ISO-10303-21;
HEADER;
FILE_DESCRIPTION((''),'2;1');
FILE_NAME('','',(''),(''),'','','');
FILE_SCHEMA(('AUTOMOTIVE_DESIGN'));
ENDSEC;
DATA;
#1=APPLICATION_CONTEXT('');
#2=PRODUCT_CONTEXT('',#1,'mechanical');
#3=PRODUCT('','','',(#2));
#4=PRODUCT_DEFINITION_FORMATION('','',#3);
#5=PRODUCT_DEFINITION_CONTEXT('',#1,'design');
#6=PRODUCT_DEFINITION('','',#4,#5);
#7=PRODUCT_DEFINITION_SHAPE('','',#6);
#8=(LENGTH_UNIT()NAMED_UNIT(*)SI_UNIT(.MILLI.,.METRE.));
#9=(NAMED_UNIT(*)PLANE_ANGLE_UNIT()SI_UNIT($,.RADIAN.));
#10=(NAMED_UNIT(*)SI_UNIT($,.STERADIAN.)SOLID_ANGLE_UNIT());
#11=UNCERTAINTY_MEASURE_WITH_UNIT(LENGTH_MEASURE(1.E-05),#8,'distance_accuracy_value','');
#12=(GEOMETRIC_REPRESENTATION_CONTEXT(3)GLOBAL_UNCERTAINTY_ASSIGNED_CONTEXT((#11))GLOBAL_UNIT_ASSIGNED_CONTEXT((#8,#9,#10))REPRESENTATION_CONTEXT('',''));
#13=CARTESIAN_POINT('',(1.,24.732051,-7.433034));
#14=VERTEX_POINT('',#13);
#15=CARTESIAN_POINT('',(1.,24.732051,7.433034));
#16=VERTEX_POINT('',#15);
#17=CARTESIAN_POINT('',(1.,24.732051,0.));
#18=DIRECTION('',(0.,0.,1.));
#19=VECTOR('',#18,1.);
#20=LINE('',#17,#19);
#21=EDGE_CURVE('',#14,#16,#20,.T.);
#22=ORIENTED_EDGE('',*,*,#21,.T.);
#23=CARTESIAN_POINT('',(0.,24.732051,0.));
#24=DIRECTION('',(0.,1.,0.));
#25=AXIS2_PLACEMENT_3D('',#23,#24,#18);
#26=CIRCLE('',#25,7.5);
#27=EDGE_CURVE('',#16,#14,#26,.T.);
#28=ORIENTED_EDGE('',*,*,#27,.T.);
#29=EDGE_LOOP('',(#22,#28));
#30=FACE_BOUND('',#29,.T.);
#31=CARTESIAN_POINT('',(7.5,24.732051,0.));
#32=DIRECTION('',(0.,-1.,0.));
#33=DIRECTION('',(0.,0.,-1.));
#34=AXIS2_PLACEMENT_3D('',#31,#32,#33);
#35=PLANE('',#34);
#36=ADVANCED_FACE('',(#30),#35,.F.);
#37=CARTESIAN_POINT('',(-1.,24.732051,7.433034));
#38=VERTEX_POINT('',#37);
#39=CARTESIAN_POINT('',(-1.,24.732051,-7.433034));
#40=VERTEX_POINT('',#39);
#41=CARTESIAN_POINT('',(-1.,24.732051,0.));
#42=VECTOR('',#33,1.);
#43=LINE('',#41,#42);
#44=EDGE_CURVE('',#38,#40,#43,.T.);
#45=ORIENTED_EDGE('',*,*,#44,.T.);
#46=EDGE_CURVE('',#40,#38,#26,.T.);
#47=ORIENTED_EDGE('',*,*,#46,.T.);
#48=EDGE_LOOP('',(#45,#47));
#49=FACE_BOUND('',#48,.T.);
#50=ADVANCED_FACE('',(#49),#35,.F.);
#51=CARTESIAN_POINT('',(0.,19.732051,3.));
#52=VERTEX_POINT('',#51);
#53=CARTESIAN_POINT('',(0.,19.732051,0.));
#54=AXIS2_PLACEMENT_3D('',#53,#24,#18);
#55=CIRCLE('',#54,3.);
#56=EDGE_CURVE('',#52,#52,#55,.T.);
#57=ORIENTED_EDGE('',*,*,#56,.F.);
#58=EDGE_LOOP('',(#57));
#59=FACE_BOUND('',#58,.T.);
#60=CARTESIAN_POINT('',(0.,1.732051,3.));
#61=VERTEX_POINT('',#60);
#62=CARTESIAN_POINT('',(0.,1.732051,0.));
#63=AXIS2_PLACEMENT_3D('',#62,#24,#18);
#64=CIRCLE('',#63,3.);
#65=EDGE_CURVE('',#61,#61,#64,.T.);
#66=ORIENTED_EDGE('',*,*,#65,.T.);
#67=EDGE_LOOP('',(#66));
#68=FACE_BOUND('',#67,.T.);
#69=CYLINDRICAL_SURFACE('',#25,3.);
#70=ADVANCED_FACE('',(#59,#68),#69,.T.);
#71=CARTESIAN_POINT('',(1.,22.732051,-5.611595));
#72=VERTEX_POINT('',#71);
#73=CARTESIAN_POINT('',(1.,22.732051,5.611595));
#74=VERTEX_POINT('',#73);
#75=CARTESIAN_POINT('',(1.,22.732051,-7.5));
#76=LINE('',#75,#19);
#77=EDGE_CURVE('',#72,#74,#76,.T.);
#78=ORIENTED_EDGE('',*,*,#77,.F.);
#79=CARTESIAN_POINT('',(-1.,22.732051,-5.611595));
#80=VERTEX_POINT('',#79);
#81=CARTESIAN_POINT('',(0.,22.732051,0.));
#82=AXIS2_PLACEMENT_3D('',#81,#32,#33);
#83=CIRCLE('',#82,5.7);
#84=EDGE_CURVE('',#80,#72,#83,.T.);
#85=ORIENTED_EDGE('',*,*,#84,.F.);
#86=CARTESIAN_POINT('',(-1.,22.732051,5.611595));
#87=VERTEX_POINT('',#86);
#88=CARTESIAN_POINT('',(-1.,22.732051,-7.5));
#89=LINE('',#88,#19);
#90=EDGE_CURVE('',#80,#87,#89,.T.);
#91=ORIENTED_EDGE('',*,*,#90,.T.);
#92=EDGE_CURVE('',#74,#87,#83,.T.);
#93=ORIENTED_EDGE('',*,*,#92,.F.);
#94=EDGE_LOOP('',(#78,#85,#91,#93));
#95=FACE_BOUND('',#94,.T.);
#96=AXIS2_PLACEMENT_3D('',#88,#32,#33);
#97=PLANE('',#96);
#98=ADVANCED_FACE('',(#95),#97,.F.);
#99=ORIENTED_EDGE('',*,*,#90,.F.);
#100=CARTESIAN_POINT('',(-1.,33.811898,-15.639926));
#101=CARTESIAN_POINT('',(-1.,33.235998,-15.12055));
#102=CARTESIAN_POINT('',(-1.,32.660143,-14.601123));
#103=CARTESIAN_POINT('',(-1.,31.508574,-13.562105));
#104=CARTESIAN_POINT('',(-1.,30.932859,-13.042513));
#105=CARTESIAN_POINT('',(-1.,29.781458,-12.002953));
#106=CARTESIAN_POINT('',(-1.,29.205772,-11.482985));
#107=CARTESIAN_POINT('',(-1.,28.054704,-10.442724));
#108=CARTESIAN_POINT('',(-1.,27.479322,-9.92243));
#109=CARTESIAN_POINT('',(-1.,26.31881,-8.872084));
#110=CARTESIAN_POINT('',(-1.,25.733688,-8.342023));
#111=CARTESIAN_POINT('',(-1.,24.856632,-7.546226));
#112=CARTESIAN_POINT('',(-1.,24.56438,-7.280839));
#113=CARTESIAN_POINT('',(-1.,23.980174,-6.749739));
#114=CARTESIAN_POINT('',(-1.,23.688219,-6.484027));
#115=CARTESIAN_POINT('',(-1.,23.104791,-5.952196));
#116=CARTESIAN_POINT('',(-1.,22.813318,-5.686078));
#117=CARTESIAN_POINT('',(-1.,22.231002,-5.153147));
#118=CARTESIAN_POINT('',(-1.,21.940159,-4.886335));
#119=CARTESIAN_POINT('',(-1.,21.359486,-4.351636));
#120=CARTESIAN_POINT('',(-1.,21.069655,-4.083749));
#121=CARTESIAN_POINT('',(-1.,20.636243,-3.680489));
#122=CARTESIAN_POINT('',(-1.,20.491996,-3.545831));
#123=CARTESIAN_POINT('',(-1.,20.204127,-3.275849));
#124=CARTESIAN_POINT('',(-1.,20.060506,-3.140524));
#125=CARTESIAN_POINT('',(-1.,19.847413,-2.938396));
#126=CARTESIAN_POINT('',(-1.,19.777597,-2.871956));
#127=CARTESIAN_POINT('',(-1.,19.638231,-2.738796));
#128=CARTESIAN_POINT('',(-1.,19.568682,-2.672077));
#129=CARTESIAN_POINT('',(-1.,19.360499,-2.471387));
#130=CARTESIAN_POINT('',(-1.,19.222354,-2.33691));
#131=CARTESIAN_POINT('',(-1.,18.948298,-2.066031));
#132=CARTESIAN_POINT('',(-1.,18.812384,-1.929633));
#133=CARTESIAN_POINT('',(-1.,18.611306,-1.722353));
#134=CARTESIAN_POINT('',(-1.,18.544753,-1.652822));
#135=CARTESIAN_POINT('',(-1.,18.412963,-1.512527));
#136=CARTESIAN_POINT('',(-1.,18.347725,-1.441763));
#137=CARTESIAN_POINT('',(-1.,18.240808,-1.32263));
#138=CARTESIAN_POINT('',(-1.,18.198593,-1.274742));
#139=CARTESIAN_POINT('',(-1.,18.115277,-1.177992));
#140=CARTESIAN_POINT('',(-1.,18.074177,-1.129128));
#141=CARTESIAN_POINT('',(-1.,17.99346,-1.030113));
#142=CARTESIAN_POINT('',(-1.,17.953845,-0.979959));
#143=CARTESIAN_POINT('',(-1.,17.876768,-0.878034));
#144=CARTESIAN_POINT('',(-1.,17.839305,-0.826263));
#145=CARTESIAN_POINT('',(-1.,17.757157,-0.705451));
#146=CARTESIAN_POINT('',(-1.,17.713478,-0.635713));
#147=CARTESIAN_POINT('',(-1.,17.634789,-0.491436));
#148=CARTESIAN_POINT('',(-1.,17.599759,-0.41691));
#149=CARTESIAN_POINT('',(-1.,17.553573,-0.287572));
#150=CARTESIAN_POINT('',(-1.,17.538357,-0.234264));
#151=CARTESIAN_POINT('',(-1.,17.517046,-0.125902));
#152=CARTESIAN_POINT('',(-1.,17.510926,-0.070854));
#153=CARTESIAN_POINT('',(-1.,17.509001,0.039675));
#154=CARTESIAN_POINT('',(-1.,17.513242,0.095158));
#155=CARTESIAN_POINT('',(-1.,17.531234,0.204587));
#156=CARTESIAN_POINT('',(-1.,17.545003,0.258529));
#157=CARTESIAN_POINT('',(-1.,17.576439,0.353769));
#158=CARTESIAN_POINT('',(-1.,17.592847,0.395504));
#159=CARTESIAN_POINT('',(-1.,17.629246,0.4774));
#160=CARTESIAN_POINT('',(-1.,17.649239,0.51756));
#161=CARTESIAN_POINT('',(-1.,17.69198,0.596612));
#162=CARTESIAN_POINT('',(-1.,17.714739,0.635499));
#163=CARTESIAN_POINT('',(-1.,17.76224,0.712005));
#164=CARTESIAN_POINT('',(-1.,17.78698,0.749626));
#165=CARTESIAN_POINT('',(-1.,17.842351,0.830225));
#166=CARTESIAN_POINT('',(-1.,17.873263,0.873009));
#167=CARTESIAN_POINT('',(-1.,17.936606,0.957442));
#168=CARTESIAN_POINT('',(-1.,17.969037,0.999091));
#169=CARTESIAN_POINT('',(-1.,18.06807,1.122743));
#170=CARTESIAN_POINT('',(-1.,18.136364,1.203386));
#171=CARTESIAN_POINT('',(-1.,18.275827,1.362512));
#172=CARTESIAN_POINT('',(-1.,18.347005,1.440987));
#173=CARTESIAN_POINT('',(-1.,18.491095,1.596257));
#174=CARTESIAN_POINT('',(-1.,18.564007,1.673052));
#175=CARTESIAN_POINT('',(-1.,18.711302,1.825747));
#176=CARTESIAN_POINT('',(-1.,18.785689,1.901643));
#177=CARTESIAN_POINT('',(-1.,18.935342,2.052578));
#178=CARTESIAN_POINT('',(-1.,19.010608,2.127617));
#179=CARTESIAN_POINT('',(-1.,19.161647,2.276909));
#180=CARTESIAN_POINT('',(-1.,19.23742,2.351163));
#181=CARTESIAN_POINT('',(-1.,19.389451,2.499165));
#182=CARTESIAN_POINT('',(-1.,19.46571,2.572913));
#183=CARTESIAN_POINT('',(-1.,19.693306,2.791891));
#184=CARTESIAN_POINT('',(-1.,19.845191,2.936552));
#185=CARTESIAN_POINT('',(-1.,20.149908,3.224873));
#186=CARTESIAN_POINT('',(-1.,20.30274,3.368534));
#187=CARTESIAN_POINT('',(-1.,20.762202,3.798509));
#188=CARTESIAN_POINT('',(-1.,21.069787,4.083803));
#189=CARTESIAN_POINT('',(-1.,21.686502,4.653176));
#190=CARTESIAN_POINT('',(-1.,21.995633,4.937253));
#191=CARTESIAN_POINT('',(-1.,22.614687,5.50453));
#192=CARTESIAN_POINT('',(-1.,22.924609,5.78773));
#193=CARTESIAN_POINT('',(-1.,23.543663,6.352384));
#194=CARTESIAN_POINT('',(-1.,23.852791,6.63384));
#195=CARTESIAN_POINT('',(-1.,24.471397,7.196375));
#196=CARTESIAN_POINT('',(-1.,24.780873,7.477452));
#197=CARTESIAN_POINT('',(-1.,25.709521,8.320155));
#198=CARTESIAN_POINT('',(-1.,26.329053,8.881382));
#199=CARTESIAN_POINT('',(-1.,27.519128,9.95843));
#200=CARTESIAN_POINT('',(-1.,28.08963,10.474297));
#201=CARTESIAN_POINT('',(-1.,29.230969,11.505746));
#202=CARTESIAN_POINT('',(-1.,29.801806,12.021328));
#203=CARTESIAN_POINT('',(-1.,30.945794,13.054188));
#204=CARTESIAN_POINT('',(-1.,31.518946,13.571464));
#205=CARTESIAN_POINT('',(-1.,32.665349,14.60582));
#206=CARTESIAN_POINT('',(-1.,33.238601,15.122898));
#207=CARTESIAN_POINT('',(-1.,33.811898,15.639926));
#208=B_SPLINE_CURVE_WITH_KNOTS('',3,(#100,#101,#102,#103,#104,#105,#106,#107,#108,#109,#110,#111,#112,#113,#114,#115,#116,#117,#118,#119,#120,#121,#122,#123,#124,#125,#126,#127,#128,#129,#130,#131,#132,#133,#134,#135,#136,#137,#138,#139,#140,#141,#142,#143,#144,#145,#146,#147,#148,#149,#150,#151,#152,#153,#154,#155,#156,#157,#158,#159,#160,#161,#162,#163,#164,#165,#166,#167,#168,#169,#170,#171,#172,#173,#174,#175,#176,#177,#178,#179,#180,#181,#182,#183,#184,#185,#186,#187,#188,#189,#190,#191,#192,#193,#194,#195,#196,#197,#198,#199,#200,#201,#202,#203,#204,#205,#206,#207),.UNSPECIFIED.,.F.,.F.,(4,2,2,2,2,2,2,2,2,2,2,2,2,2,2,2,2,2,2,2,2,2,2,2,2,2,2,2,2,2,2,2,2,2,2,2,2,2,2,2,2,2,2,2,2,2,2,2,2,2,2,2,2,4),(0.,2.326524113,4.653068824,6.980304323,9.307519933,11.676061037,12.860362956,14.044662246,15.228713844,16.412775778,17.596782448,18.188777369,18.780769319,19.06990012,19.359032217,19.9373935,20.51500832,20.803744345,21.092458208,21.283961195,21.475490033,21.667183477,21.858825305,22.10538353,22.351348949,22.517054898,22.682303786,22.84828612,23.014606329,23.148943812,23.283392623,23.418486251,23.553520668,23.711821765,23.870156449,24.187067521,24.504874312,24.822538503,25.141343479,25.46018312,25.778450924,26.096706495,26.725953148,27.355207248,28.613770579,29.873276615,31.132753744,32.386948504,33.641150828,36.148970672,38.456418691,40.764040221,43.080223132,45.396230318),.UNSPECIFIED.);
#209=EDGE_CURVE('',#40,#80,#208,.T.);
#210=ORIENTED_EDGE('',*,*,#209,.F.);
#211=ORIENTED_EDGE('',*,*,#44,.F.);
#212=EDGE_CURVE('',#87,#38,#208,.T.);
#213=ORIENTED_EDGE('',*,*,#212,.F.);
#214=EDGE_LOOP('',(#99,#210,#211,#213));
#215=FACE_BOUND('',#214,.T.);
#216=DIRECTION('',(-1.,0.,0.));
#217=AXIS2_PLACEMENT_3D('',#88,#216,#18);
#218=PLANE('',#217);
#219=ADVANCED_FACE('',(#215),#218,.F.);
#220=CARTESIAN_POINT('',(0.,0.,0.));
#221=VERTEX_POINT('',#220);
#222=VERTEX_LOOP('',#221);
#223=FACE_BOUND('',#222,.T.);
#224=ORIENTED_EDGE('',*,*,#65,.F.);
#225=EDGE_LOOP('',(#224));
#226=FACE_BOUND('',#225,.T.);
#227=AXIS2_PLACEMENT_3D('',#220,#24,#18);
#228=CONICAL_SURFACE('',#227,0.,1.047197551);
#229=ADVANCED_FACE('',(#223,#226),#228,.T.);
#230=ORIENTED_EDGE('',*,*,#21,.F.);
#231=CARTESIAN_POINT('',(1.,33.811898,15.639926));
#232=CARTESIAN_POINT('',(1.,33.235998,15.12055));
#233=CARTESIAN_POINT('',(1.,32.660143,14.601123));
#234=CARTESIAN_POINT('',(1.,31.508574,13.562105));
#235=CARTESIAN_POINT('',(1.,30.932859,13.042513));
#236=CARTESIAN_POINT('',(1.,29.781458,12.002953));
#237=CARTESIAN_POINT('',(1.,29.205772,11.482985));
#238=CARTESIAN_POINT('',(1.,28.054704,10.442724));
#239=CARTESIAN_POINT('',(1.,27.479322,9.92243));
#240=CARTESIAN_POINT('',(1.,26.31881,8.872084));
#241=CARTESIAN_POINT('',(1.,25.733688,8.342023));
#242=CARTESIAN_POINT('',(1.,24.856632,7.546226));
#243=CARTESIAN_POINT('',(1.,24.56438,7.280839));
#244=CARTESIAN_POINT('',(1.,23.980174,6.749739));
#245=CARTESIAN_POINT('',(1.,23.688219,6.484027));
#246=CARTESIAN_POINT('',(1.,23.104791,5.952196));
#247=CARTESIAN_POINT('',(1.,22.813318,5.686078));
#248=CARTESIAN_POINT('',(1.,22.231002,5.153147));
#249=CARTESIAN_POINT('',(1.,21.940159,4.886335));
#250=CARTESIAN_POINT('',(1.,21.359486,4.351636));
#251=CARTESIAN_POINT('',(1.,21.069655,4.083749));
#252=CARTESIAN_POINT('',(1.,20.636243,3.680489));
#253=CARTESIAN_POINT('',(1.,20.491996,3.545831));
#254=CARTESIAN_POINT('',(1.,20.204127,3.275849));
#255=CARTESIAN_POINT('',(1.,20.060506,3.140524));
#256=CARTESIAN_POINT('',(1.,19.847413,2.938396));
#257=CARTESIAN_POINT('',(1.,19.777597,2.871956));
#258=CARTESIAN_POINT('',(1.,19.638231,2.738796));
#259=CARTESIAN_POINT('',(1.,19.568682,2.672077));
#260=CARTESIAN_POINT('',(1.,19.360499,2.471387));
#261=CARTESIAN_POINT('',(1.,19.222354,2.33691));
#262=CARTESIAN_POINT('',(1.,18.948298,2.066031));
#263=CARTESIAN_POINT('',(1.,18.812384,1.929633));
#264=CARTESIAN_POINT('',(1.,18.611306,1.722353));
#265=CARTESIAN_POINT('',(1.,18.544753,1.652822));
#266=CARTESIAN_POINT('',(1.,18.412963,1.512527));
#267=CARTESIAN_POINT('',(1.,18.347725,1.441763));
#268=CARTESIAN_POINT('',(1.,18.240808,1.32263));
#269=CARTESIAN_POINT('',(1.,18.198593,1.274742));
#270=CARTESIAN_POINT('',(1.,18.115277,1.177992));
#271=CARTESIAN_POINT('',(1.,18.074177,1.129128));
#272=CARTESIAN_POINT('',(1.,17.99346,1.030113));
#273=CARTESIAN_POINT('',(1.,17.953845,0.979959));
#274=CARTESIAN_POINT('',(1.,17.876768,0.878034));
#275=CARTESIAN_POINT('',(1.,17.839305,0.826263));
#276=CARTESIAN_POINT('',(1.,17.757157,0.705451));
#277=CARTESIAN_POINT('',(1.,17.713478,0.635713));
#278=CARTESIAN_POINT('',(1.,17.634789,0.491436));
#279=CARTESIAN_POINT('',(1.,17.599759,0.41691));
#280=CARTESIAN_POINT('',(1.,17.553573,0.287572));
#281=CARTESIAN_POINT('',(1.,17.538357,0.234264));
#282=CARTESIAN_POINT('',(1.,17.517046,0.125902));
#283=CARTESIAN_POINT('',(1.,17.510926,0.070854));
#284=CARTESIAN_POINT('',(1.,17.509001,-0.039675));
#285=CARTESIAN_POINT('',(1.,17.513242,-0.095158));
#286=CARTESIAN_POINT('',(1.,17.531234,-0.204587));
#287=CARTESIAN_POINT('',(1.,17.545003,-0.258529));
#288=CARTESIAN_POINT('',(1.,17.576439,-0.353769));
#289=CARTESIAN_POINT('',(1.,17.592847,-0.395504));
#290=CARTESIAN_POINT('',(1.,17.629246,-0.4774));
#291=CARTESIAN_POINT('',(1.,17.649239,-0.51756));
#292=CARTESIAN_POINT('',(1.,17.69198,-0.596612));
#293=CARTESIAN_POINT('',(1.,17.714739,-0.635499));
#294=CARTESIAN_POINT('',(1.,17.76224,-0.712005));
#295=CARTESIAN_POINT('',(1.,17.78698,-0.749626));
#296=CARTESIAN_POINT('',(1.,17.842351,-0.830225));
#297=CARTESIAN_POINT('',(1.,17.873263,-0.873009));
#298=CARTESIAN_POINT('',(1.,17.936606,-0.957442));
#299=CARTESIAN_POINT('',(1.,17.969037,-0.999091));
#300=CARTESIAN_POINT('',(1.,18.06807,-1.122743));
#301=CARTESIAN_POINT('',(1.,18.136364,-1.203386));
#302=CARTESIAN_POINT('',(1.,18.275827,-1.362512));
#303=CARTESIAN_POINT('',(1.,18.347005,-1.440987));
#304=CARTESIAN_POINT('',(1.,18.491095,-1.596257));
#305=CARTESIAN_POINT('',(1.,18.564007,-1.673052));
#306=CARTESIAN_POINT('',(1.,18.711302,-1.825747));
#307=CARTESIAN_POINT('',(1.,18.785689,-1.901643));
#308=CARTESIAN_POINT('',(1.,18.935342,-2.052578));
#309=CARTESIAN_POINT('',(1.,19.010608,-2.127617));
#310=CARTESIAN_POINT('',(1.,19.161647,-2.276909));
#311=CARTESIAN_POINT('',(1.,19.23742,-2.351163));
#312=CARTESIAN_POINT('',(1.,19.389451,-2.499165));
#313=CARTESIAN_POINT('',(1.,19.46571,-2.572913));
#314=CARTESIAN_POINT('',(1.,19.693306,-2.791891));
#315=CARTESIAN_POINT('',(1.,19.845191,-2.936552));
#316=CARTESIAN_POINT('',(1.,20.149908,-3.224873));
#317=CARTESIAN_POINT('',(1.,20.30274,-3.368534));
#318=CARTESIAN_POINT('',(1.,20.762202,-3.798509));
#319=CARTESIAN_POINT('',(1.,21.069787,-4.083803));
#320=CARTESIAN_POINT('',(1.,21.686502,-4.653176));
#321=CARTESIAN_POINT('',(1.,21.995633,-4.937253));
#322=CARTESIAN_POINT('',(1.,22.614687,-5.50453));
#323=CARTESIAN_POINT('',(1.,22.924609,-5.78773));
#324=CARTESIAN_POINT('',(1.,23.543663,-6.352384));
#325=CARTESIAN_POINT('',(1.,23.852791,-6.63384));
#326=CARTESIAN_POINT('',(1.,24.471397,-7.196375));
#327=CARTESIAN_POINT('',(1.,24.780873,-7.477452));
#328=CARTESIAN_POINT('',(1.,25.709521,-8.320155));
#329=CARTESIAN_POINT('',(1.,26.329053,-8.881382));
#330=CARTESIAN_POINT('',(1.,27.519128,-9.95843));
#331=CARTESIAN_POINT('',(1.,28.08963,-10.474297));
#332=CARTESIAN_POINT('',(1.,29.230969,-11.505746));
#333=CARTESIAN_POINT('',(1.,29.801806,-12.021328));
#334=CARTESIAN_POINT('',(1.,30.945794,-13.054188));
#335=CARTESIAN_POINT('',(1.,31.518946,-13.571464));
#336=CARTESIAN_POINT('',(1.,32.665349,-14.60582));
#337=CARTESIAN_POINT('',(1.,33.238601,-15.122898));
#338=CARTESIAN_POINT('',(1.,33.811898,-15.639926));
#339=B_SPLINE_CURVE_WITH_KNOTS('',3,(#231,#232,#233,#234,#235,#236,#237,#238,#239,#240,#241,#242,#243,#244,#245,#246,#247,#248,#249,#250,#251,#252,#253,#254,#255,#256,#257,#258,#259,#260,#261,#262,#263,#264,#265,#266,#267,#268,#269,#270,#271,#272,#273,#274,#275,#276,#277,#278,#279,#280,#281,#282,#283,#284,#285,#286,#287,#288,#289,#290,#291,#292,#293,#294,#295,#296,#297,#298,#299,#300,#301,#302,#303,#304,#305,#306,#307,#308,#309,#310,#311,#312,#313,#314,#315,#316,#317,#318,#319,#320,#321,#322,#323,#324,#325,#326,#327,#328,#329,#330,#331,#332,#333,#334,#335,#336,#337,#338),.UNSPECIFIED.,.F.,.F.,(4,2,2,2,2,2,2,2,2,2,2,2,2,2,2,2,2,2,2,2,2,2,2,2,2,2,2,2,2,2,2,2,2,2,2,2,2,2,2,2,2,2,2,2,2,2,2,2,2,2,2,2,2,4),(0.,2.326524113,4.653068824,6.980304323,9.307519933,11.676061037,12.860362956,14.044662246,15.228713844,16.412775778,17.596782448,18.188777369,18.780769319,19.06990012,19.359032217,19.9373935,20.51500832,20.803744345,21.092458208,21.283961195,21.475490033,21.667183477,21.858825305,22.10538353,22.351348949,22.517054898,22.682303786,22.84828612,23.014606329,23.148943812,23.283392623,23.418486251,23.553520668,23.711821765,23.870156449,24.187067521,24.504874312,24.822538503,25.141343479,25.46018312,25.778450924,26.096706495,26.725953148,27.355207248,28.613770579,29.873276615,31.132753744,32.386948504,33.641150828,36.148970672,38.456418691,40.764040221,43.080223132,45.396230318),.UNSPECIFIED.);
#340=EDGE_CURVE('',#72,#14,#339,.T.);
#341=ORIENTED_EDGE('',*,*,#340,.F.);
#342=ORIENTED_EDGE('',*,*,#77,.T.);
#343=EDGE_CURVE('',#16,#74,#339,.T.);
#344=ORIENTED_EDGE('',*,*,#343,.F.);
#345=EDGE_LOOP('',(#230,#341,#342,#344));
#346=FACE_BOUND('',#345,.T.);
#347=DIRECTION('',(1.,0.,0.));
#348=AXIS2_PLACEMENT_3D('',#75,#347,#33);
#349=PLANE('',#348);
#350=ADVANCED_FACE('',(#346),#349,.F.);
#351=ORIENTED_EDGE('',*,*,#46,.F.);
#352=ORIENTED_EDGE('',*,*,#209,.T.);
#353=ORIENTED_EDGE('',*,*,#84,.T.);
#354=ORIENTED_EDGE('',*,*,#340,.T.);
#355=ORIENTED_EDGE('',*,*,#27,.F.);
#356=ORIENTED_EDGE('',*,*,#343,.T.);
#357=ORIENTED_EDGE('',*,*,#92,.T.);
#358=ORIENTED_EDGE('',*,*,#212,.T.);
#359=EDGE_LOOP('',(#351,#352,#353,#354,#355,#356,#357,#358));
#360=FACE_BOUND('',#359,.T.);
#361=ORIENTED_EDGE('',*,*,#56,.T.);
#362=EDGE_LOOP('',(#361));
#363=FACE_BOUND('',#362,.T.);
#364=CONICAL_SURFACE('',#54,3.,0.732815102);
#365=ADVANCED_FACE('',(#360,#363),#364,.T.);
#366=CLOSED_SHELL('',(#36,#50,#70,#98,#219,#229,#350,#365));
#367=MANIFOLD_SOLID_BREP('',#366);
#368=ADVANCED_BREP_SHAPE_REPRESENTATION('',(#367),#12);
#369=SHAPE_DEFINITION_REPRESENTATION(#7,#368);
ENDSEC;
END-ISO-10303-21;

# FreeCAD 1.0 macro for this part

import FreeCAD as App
import Part
import Sketcher
from FreeCAD import Vector
Q = App.Units.Quantity

doc = App.newDocument("Part")
params = doc.addObject("Spreadsheet::Sheet", "Params")
for row, (alias, value) in enumerate([
    ("sketch1_height", "18 mm"),
    ("sketch1_width", "7.5 mm"),
    ("revolution_angle", "360 deg"),
    ("sketch2_width", "2 mm"),
    ("sketch2_height", "4 mm"),
], start=1):
    params.set(f"A{row}", alias)
    params.set(f"B{row}", "=" + value)
    params.setAlias(f"B{row}", alias)

body = doc.addObject("PartDesign::Body", "Body")

sketch1 = body.newObject("Sketcher::SketchObject", "Sketch")
sketch1.AttachmentSupport = (doc.getObject("XY_Plane"), [""])
sketch1.MapMode = "FlatFace"
sketch1.addGeometry(Part.LineSegment(Vector(0, 0, 0), Vector(3, 1.732051, 0)), False)
sketch1.addGeometry(Part.LineSegment(Vector(3, 1.732051, 0), Vector(3, 19.732051, 0)), False)
sketch1.addGeometry(Part.LineSegment(Vector(3, 19.732051, 0), Vector(7.5, 24.732051, 0)), False)
sketch1.addGeometry(Part.LineSegment(Vector(7.5, 24.732051, 0), Vector(0, 24.732051, 0)), False)
sketch1.addGeometry(Part.LineSegment(Vector(0, 24.732051, 0), Vector(0, 0, 0)), False)
sketch1.addConstraint(Sketcher.Constraint("Coincident", 0, 2, 1, 1))
sketch1.addConstraint(Sketcher.Constraint("Coincident", 1, 2, 2, 1))
sketch1.addConstraint(Sketcher.Constraint("Coincident", 2, 2, 3, 1))
sketch1.addConstraint(Sketcher.Constraint("Coincident", 3, 2, 4, 1))
sketch1.addConstraint(Sketcher.Constraint("Coincident", 4, 2, 0, 1))
sketch1.addConstraint(Sketcher.Constraint("Vertical", 1))
sketch1.addConstraint(Sketcher.Constraint("Horizontal", 3))
sketch1.addConstraint(Sketcher.Constraint("Vertical", 4))
sketch1.addConstraint(Sketcher.Constraint("Coincident", 4, 2, -1, 1))
sketch1.addConstraint(Sketcher.Constraint("DistanceY", 1, 1, 1, 2, Q("18 mm")))
sketch1.addConstraint(Sketcher.Constraint("Angle", 0, Q("30 deg")))
sketch1.addConstraint(Sketcher.Constraint("DistanceX", 3, 2, 3, 1, Q("7.5 mm")))
sketch1.addConstraint(Sketcher.Constraint("DistanceX", -1, 1, 0, 2, Q("3 mm")))
sketch1.addConstraint(Sketcher.Constraint("DistanceY", 1, 2, 2, 2, Q("5 mm")))
sketch1.setExpression("Constraints[9]", "Params.sketch1_height")
sketch1.setExpression("Constraints[11]", "Params.sketch1_width")
revolution = body.newObject("PartDesign::Revolution", "Revolution")
revolution.Profile = sketch1
revolution.ReferenceAxis = (sketch1, ["V_Axis"])
revolution.setExpression("Angle", "Params.revolution_angle")

sketch2 = body.newObject("Sketcher::SketchObject", "Sketch001")
sketch2.AttachmentSupport = (doc.getObject("XY_Plane"), [""])
sketch2.MapMode = "FlatFace"
sketch2.addGeometry(Part.LineSegment(Vector(-1, 26.732051, 0), Vector(-1, 22.732051, 0)), False)
sketch2.addGeometry(Part.LineSegment(Vector(-1, 22.732051, 0), Vector(1, 22.732051, 0)), False)
sketch2.addGeometry(Part.LineSegment(Vector(1, 22.732051, 0), Vector(1, 26.732051, 0)), False)
sketch2.addGeometry(Part.LineSegment(Vector(1, 26.732051, 0), Vector(-1, 26.732051, 0)), False)
sketch2.addConstraint(Sketcher.Constraint("Coincident", 0, 2, 1, 1))
sketch2.addConstraint(Sketcher.Constraint("Coincident", 1, 2, 2, 1))
sketch2.addConstraint(Sketcher.Constraint("Coincident", 2, 2, 3, 1))
sketch2.addConstraint(Sketcher.Constraint("Coincident", 3, 2, 0, 1))
sketch2.addConstraint(Sketcher.Constraint("Vertical", 0))
sketch2.addConstraint(Sketcher.Constraint("Horizontal", 1))
sketch2.addConstraint(Sketcher.Constraint("Vertical", 2))
sketch2.addConstraint(Sketcher.Constraint("Horizontal", 3))
sketch2.addConstraint(Sketcher.Constraint("DistanceX", 1, 1, 1, 2, Q("2 mm")))
sketch2.addConstraint(Sketcher.Constraint("DistanceY", 0, 2, 0, 1, Q("4 mm")))
sketch2.addConstraint(Sketcher.Constraint("DistanceX", 0, 2, -1, 1, Q("1 mm")))
sketch2.addConstraint(Sketcher.Constraint("DistanceY", -1, 1, 0, 2, Q("22.732051 mm")))
sketch2.setExpression("Constraints[8]", "Params.sketch2_width")
sketch2.setExpression("Constraints[9]", "Params.sketch2_height")
pocket1 = body.newObject("PartDesign::Pocket", "Pocket")
pocket1.Profile = sketch2
pocket1.Type = "ThroughAll"
pocket1.Midplane = True

doc.recompute()
